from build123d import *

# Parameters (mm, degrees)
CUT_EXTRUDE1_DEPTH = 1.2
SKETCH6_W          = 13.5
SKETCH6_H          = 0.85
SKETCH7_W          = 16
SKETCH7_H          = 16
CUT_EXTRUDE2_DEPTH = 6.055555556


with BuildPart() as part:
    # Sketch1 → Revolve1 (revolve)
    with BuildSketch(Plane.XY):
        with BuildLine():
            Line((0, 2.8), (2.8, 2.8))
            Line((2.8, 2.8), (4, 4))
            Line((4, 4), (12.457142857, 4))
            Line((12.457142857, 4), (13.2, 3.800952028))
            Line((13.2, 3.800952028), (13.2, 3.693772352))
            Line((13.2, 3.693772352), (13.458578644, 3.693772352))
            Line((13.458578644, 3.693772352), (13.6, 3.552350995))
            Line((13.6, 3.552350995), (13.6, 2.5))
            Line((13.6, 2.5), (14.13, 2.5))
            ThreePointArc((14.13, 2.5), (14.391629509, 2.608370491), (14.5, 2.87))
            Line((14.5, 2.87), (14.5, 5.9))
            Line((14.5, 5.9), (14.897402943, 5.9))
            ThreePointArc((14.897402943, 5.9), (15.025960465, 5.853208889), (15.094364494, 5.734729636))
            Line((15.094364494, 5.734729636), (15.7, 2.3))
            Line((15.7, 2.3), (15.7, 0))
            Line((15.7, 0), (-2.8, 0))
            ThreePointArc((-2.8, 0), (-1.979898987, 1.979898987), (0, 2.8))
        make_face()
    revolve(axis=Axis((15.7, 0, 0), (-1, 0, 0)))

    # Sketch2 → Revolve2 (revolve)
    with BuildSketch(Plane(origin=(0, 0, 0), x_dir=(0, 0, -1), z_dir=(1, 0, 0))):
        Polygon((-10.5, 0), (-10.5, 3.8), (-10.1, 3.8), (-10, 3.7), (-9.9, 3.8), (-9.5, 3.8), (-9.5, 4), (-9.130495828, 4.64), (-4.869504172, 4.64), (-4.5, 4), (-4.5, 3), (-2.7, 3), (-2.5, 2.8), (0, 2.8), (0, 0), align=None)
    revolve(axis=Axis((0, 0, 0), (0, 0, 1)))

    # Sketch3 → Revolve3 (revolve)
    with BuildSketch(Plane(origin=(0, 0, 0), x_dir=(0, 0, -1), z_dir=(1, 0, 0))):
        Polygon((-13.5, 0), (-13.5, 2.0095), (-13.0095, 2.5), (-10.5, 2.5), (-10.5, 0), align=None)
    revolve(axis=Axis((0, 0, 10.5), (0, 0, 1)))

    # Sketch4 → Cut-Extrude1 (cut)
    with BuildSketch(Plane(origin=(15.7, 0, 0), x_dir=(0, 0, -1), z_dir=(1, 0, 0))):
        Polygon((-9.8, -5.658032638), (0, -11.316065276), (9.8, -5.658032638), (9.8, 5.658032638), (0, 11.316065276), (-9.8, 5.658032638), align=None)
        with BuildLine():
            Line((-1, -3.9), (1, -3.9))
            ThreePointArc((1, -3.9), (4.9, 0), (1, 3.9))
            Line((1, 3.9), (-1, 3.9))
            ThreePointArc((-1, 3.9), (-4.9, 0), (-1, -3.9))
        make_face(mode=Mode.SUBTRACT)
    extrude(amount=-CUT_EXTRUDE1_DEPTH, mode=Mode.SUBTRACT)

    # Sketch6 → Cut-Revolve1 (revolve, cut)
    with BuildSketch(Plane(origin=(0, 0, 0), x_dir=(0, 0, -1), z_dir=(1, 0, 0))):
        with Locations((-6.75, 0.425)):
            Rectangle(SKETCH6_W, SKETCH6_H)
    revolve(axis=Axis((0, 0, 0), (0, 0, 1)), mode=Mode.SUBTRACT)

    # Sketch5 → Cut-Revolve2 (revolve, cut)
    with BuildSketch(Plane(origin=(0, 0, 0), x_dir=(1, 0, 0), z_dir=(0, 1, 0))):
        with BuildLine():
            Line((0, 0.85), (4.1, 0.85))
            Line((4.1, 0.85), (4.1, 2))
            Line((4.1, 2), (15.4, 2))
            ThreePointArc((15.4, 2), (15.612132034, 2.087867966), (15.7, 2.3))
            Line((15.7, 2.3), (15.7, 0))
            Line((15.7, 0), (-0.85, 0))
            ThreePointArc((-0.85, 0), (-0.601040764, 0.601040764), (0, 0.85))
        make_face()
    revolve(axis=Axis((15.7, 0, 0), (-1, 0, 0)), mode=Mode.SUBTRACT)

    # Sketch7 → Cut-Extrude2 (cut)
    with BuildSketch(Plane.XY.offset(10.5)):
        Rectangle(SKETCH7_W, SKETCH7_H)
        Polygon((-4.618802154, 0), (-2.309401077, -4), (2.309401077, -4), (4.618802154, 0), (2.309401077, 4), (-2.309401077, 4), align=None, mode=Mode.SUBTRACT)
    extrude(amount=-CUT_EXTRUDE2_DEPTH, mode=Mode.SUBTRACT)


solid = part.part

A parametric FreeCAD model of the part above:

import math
import FreeCAD as App
import Part
import Sketcher
from FreeCAD import Vector
Q = App.Units.Quantity


def add_polygon(sketch, points):
    """Adds a closed chain of lines whose ends are joined by coincident constraints."""
    first, n = sketch.GeometryCount, len(points)
    for a, b in zip(points, points[1:] + points[:1]):
        sketch.addGeometry(Part.LineSegment(App.Vector(*a, 0), App.Vector(*b, 0)), False)
    for i in range(n):
        sketch.addConstraint(Sketcher.Constraint("Coincident", first + i, 2, first + (i + 1) % n, 1))

doc = App.newDocument("Part")
body = doc.addObject("PartDesign::Body", "Body")

sketch1 = body.newObject("Sketcher::SketchObject", "Sketch")
sketch1.AttachmentSupport = (doc.getObject("XY_Plane"), [""])
sketch1.MapMode = "FlatFace"
sketch1.addGeometry([
    Part.LineSegment(Vector(2.8, 2.8, 0), Vector(0, 2.8, 0)),
    Part.ArcOfCircle(Part.Circle(Vector(0, 0, 0), Vector(0, 0, 1), 2.8), math.radians(90), math.radians(180)),
    Part.LineSegment(Vector(-2.8, 0, 0), Vector(15.7, 0, 0)),
    Part.LineSegment(Vector(15.7, 0, 0), Vector(15.7, 2.3, 0)),
    Part.LineSegment(Vector(15.7, 2.3, 0), Vector(15.094364, 5.73473, 0)),
    Part.ArcOfCircle(Part.Circle(Vector(14.897403, 5.7, 0), Vector(0, 0, 1), 0.2), math.radians(10), math.radians(90)),
    Part.LineSegment(Vector(14.897403, 5.9, 0), Vector(14.5, 5.9, 0)),
    Part.LineSegment(Vector(14.5, 5.9, 0), Vector(14.5, 2.87, 0)),
    Part.ArcOfCircle(Part.Circle(Vector(14.13, 2.87, 0), Vector(0, 0, 1), 0.37), math.radians(-90), math.radians(0)),
    Part.LineSegment(Vector(14.13, 2.5, 0), Vector(13.6, 2.5, 0)),
    Part.LineSegment(Vector(13.6, 2.5, 0), Vector(13.6, 3.552351, 0)),
    Part.LineSegment(Vector(13.6, 3.552351, 0), Vector(13.458579, 3.693772, 0)),
    Part.LineSegment(Vector(13.458579, 3.693772, 0), Vector(13.2, 3.693772, 0)),
    Part.LineSegment(Vector(13.2, 3.693772, 0), Vector(13.2, 3.800952, 0)),
    Part.LineSegment(Vector(13.2, 3.800952, 0), Vector(12.457143, 4, 0)),
    Part.LineSegment(Vector(12.457143, 4, 0), Vector(4, 4, 0)),
    Part.LineSegment(Vector(4, 4, 0), Vector(2.8, 2.8, 0)),
], False)
sketch1.addConstraint([
    Sketcher.Constraint("Tangent", 0, 2, 1, 1),
    Sketcher.Constraint("Coincident", 1, 2, 2, 1),
    Sketcher.Constraint("Coincident", 2, 2, 3, 1),
    Sketcher.Constraint("Coincident", 3, 2, 4, 1),
    Sketcher.Constraint("Tangent", 4, 2, 5, 1),
    Sketcher.Constraint("Tangent", 5, 2, 6, 1),
    Sketcher.Constraint("Coincident", 6, 2, 7, 1),
    Sketcher.Constraint("Tangent", 7, 2, 8, 2),
    Sketcher.Constraint("Tangent", 8, 1, 9, 1),
    Sketcher.Constraint("Coincident", 9, 2, 10, 1),
    Sketcher.Constraint("Coincident", 10, 2, 11, 1),
    Sketcher.Constraint("Coincident", 11, 2, 12, 1),
    Sketcher.Constraint("Coincident", 12, 2, 13, 1),
    Sketcher.Constraint("Coincident", 13, 2, 14, 1),
    Sketcher.Constraint("Coincident", 14, 2, 15, 1),
    Sketcher.Constraint("Coincident", 15, 2, 16, 1),
    Sketcher.Constraint("Coincident", 16, 2, 0, 1),
    Sketcher.Constraint("Horizontal", 0),
    Sketcher.Constraint("Horizontal", 2),
    Sketcher.Constraint("Vertical", 3),
    Sketcher.Constraint("Horizontal", 6),
    Sketcher.Constraint("Vertical", 7),
    Sketcher.Constraint("Horizontal", 9),
    Sketcher.Constraint("Vertical", 10),
    Sketcher.Constraint("Horizontal", 12),
    Sketcher.Constraint("Vertical", 13),
    Sketcher.Constraint("Horizontal", 15),
    Sketcher.Constraint("Coincident", 1, 3, -1, 1),
    Sketcher.Constraint("PointOnObject", 1, 2, -1),
    Sketcher.Constraint("Perpendicular", 11, 16),
    Sketcher.Constraint("Radius", 1, Q("2.8 mm")),
    Sketcher.Constraint("Radius", 5, Q("0.2 mm")),
    Sketcher.Constraint("Angle", 4, Q("100 deg")),
    Sketcher.Constraint("Angle", 11, Q("135 deg")),
    Sketcher.Constraint("Angle", 14, Q("165 deg")),
    Sketcher.Constraint("Radius", 8, Q("0.37 mm")),
    Sketcher.Constraint("DistanceX", 0, 2, 0, 1, Q("2.8 mm")),
    Sketcher.Constraint("DistanceX", 2, 1, 2, 2, Q("18.5 mm")),
    Sketcher.Constraint("DistanceY", 3, 1, 3, 2, Q("2.3 mm")),
    Sketcher.Constraint("DistanceY", -1, 1, 14, 2, Q("4 mm")),
    Sketcher.Constraint("Distance", 11, Q("0.2 mm")),
    Sketcher.Constraint("DistanceX", 9, 2, 9, 1, Q("0.53 mm")),
    Sketcher.Constraint("DistanceY", 7, 2, 7, 1, Q("3.03 mm")),
    Sketcher.Constraint("DistanceY", -1, 1, 5, 3, Q("5.7 mm")),
    Sketcher.Constraint("DistanceX", -1, 1, 6, 2, Q("14.5 mm")),
    Sketcher.Constraint("DistanceX", -1, 1, 12, 2, Q("13.2 mm")),
    Sketcher.Constraint("DistanceY", 10, 1, 10, 2, Q("1.052351 mm")),
    Sketcher.Constraint("DistanceY", 13, 1, 13, 2, Q("0.10718 mm")),
])
revolution = body.newObject("PartDesign::Revolution", "Revolution")
revolution.Profile = sketch1
revolution.ReferenceAxis = (sketch1, ["H_Axis"])
revolution.Angle = 360

sketch2 = body.newObject("Sketcher::SketchObject", "Sketch001")
sketch2.AttachmentSupport = (doc.getObject("YZ_Plane"), [""])
sketch2.MapMode = "FlatFace"
add_polygon(sketch2, [(3.8, 10.5), (0, 10.5), (0, 0), (2.8, 0), (2.8, 2.5), (3, 2.7), (3, 4.5), (4, 4.5), (4.64, 4.869504), (4.64, 9.130496), (4, 9.5), (3.8, 9.5), (3.8, 9.9), (3.7, 10), (3.8, 10.1)])
sketch2.addConstraint([
    Sketcher.Constraint("Horizontal", 0),
    Sketcher.Constraint("Vertical", 1),
    Sketcher.Constraint("Horizontal", 2),
    Sketcher.Constraint("Vertical", 3),
    Sketcher.Constraint("Vertical", 5),
    Sketcher.Constraint("Horizontal", 6),
    Sketcher.Constraint("Vertical", 8),
    Sketcher.Constraint("Horizontal", 10),
    Sketcher.Constraint("Vertical", 11),
    Sketcher.Constraint("Vertical", 14),
    Sketcher.Constraint("Coincident", 1, 2, -1, 1),
    Sketcher.Constraint("Perpendicular", 4, 12),
    Sketcher.Constraint("Perpendicular", 12, 13),
    Sketcher.Constraint("Vertical", 6, 2, 9, 2),
    Sketcher.Constraint("Vertical", 11, 2, 13, 2),
    Sketcher.Constraint("Equal", 11, 14),
    Sketcher.Constraint("Equal", 7, 9),
    Sketcher.Constraint("Equal", 12, 13),
    Sketcher.Constraint("DistanceX", 6, 1, 6, 2, Q("1 mm")),
    Sketcher.Constraint("Angle", 7, Q("30 deg")),
    Sketcher.Constraint("DistanceX", 0, 2, 0, 1, Q("3.8 mm")),
    Sketcher.Constraint("DistanceX", 2, 1, 2, 2, Q("2.8 mm")),
    Sketcher.Constraint("DistanceX", 10, 2, 10, 1, Q("0.2 mm")),
    Sketcher.Constraint("DistanceY", 1, 2, 1, 1, Q("10.5 mm")),
    Sketcher.Constraint("DistanceY", 3, 1, 3, 2, Q("2.5 mm")),
    Sketcher.Constraint("DistanceY", 5, 1, 5, 2, Q("1.8 mm")),
    Sketcher.Constraint("DistanceY", 11, 1, 11, 2, Q("0.4 mm")),
    Sketcher.Constraint("DistanceY", -1, 1, 12, 2, Q("10 mm")),
    Sketcher.Constraint("DistanceX", -1, 1, 7, 2, Q("4.64 mm")),
])
revolution2 = body.newObject("PartDesign::Revolution", "Revolution001")
revolution2.Profile = sketch2
revolution2.ReferenceAxis = (sketch2, ["V_Axis"])
revolution2.Angle = 360

sketch3 = body.newObject("Sketcher::SketchObject", "Sketch002")
sketch3.AttachmentSupport = (doc.getObject("YZ_Plane"), [""])
sketch3.MapMode = "FlatFace"
add_polygon(sketch3, [(2.0095, 13.5), (0, 13.5), (0, 10.5), (2.5, 10.5), (2.5, 13.0095)])
sketch3.addConstraint([
    Sketcher.Constraint("Horizontal", 0),
    Sketcher.Constraint("Vertical", 1),
    Sketcher.Constraint("Horizontal", 2),
    Sketcher.Constraint("Vertical", 3),
    Sketcher.Constraint("PointOnObject", 0, 2, -2),
    Sketcher.Constraint("DistanceY", 1, 2, 1, 1, Q("3 mm")),
    Sketcher.Constraint("Angle", 4, Q("135 deg")),
    Sketcher.Constraint("DistanceX", 2, 1, 2, 2, Q("2.5 mm")),
    Sketcher.Constraint("DistanceY", -1, 1, 0, 2, Q("13.5 mm")),
    Sketcher.Constraint("DistanceX", 0, 2, 0, 1, Q("2.0095 mm")),
])
revolution3 = body.newObject("PartDesign::Revolution", "Revolution002")
revolution3.Profile = sketch3
revolution3.ReferenceAxis = (sketch3, ["V_Axis"])
revolution3.Angle = 360

sketch4 = body.newObject("Sketcher::SketchObject", "Sketch003")
sketch4.AttachmentSupport = (doc.getObject("YZ_Plane"), [""])
sketch4.MapMode = "FlatFace"
sketch4.AttachmentOffset = App.Placement(Vector(0, 0, 15.7), App.Rotation())
add_polygon(sketch4, [(-5.658033, 9.8), (-11.316065, 0), (-5.658033, -9.8), (5.658033, -9.8), (11.316065, 0), (5.658033, 9.8)])
sketch4.addGeometry(Part.LineSegment(Vector(-3.9, -1, 0), Vector(-3.9, 1, 0)), False)
sketch4.addGeometry(Part.ArcOfCircle(Part.Circle(Vector(0, 1, 0), Vector(0, 0, 1), 3.9), math.radians(0), math.radians(180)), False)
sketch4.addGeometry(Part.LineSegment(Vector(3.9, 1, 0), Vector(3.9, -1, 0)), False)
sketch4.addGeometry(Part.ArcOfCircle(Part.Circle(Vector(0, -1, 0), Vector(0, 0, 1), 3.9), math.radians(180), math.radians(360)), False)
sketch4.addConstraint([
    Sketcher.Constraint("Tangent", 6, 2, 7, 2),
    Sketcher.Constraint("Tangent", 7, 1, 8, 1),
    Sketcher.Constraint("Tangent", 8, 2, 9, 2),
    Sketcher.Constraint("Tangent", 9, 1, 6, 1),
    Sketcher.Constraint("Horizontal", 2),
    Sketcher.Constraint("Horizontal", 5),
    Sketcher.Constraint("Vertical", 6),
    Sketcher.Constraint("Vertical", 8),
    Sketcher.Constraint("Symmetric", 7, 3, 9, 3, -1, 1),
    Sketcher.Constraint("Symmetric", 0, 2, 3, 2, -1, 1),
    Sketcher.Constraint("Symmetric", 1, 2, 4, 2, -1, 1),
    Sketcher.Constraint("PointOnObject", 0, 2, -1),
    Sketcher.Constraint("Parallel", 0, 3),
    Sketcher.Constraint("Vertical", 2, 2, 4, 2),
    Sketcher.Constraint("Radius", 7, Q("3.9 mm")),
    Sketcher.Constraint("DistanceY", 6, 1, 6, 2, Q("2 mm")),
    Sketcher.Constraint("Angle", 0, Q("-120 deg")),
    Sketcher.Constraint("DistanceY", 1, 2, -1, 1, Q("9.8 mm")),
    Sketcher.Constraint("DistanceX", 2, 1, 2, 2, Q("11.316065 mm")),
])
pocket1 = body.newObject("PartDesign::Pocket", "Pocket")
pocket1.Profile = sketch4
pocket1.Length = 1.2

sketch5 = body.newObject("Sketcher::SketchObject", "Sketch004")
sketch5.AttachmentSupport = (doc.getObject("YZ_Plane"), [""])
sketch5.MapMode = "FlatFace"
add_polygon(sketch5, [(0.85, 13.5), (0, 13.5), (0, 0), (0.85, 0)])
sketch5.addConstraint([
    Sketcher.Constraint("Horizontal", 0),
    Sketcher.Constraint("Vertical", 1),
    Sketcher.Constraint("Horizontal", 2),
    Sketcher.Constraint("Vertical", 3),
    Sketcher.Constraint("Coincident", 1, 2, -1, 1),
    Sketcher.Constraint("DistanceY", 1, 2, 1, 1, Q("13.5 mm")),
    Sketcher.Constraint("DistanceX", 0, 2, 0, 1, Q("0.85 mm")),
])
groove = body.newObject("PartDesign::Groove", "Groove")
groove.Profile = sketch5
groove.ReferenceAxis = (sketch5, ["V_Axis"])
groove.Angle = 360

sketch6 = body.newObject("Sketcher::SketchObject", "Sketch005")
sketch6.AttachmentSupport = (doc.getObject("XZ_Plane"), [""])
sketch6.MapMode = "FlatFace"
sketch6.addGeometry([
    Part.LineSegment(Vector(4.1, -0.85, 0), Vector(0, -0.85, 0)),
    Part.ArcOfCircle(Part.Circle(Vector(0, 0, 0), Vector(0, 0, 1), 0.85), math.radians(180), math.radians(270)),
    Part.LineSegment(Vector(-0.85, 0, 0), Vector(15.7, 0, 0)),
    Part.LineSegment(Vector(15.7, 0, 0), Vector(15.7, -2.3, 0)),
    Part.ArcOfCircle(Part.Circle(Vector(15.4, -2.3, 0), Vector(0, 0, 1), 0.3), math.radians(0), math.radians(90)),
    Part.LineSegment(Vector(15.4, -2, 0), Vector(4.1, -2, 0)),
    Part.LineSegment(Vector(4.1, -2, 0), Vector(4.1, -0.85, 0)),
], False)
sketch6.addConstraint([
    Sketcher.Constraint("Tangent", 0, 2, 1, 2),
    Sketcher.Constraint("Coincident", 1, 1, 2, 1),
    Sketcher.Constraint("Coincident", 2, 2, 3, 1),
    Sketcher.Constraint("Tangent", 3, 2, 4, 1),
    Sketcher.Constraint("Tangent", 4, 2, 5, 1),
    Sketcher.Constraint("Coincident", 5, 2, 6, 1),
    Sketcher.Constraint("Coincident", 6, 2, 0, 1),
    Sketcher.Constraint("Horizontal", 0),
    Sketcher.Constraint("Horizontal", 2),
    Sketcher.Constraint("Vertical", 3),
    Sketcher.Constraint("Horizontal", 5),
    Sketcher.Constraint("Vertical", 6),
    Sketcher.Constraint("Coincident", 1, 3, -1, 1),
    Sketcher.Constraint("PointOnObject", 1, 1, -1),
    Sketcher.Constraint("Radius", 4, Q("0.3 mm")),
    Sketcher.Constraint("Radius", 1, Q("0.85 mm")),
    Sketcher.Constraint("DistanceX", 0, 2, 0, 1, Q("4.1 mm")),
    Sketcher.Constraint("DistanceX", 5, 2, 5, 1, Q("11.3 mm")),
    Sketcher.Constraint("DistanceY", 3, 2, 3, 1, Q("2.3 mm")),
])
groove2 = body.newObject("PartDesign::Groove", "Groove001")
groove2.Profile = sketch6
groove2.ReferenceAxis = (sketch6, ["H_Axis"])
groove2.Angle = 360

sketch7 = body.newObject("Sketcher::SketchObject", "Sketch006")
sketch7.AttachmentSupport = (doc.getObject("XY_Plane"), [""])
sketch7.MapMode = "FlatFace"
sketch7.AttachmentOffset = App.Placement(Vector(0, 0, 10.5), App.Rotation())
add_polygon(sketch7, [(-8, 8), (-8, -8), (8, -8), (8, 8)])
add_polygon(sketch7, [(-2.309401, -4), (-4.618802, 0), (-2.309401, 4), (2.309401, 4), (4.618802, 0), (2.309401, -4)])
sketch7.addConstraint([
    Sketcher.Constraint("Vertical", 0),
    Sketcher.Constraint("Horizontal", 1),
    Sketcher.Constraint("Vertical", 2),
    Sketcher.Constraint("Horizontal", 3),
    Sketcher.Constraint("Horizontal", 6),
    Sketcher.Constraint("Horizontal", 9),
    Sketcher.Constraint("Symmetric", 0, 2, 2, 2, -1, 1),
    Sketcher.Constraint("Symmetric", 4, 2, 7, 2, -1, 1),
    Sketcher.Constraint("Symmetric", 5, 2, 8, 2, -1, 1),
    Sketcher.Constraint("PointOnObject", 4, 2, -1),
    Sketcher.Constraint("Parallel", 4, 7),
    Sketcher.Constraint("Vertical", 6, 2, 8, 2),
    Sketcher.Constraint("Equal", 3, 0),
    Sketcher.Constraint("DistanceX", 1, 1, 1, 2, Q("16 mm")),
    Sketcher.Constraint("Angle", 4, Q("120 deg")),
    Sketcher.Constraint("DistanceY", -1, 1, 5, 2, Q("4 mm")),
    Sketcher.Constraint("DistanceX", 5, 2, -1, 1, Q("2.309401 mm")),
])
pocket2 = body.newObject("PartDesign::Pocket", "Pocket001")
pocket2.Profile = sketch7
pocket2.Length = 6.055556

doc.recompute()
